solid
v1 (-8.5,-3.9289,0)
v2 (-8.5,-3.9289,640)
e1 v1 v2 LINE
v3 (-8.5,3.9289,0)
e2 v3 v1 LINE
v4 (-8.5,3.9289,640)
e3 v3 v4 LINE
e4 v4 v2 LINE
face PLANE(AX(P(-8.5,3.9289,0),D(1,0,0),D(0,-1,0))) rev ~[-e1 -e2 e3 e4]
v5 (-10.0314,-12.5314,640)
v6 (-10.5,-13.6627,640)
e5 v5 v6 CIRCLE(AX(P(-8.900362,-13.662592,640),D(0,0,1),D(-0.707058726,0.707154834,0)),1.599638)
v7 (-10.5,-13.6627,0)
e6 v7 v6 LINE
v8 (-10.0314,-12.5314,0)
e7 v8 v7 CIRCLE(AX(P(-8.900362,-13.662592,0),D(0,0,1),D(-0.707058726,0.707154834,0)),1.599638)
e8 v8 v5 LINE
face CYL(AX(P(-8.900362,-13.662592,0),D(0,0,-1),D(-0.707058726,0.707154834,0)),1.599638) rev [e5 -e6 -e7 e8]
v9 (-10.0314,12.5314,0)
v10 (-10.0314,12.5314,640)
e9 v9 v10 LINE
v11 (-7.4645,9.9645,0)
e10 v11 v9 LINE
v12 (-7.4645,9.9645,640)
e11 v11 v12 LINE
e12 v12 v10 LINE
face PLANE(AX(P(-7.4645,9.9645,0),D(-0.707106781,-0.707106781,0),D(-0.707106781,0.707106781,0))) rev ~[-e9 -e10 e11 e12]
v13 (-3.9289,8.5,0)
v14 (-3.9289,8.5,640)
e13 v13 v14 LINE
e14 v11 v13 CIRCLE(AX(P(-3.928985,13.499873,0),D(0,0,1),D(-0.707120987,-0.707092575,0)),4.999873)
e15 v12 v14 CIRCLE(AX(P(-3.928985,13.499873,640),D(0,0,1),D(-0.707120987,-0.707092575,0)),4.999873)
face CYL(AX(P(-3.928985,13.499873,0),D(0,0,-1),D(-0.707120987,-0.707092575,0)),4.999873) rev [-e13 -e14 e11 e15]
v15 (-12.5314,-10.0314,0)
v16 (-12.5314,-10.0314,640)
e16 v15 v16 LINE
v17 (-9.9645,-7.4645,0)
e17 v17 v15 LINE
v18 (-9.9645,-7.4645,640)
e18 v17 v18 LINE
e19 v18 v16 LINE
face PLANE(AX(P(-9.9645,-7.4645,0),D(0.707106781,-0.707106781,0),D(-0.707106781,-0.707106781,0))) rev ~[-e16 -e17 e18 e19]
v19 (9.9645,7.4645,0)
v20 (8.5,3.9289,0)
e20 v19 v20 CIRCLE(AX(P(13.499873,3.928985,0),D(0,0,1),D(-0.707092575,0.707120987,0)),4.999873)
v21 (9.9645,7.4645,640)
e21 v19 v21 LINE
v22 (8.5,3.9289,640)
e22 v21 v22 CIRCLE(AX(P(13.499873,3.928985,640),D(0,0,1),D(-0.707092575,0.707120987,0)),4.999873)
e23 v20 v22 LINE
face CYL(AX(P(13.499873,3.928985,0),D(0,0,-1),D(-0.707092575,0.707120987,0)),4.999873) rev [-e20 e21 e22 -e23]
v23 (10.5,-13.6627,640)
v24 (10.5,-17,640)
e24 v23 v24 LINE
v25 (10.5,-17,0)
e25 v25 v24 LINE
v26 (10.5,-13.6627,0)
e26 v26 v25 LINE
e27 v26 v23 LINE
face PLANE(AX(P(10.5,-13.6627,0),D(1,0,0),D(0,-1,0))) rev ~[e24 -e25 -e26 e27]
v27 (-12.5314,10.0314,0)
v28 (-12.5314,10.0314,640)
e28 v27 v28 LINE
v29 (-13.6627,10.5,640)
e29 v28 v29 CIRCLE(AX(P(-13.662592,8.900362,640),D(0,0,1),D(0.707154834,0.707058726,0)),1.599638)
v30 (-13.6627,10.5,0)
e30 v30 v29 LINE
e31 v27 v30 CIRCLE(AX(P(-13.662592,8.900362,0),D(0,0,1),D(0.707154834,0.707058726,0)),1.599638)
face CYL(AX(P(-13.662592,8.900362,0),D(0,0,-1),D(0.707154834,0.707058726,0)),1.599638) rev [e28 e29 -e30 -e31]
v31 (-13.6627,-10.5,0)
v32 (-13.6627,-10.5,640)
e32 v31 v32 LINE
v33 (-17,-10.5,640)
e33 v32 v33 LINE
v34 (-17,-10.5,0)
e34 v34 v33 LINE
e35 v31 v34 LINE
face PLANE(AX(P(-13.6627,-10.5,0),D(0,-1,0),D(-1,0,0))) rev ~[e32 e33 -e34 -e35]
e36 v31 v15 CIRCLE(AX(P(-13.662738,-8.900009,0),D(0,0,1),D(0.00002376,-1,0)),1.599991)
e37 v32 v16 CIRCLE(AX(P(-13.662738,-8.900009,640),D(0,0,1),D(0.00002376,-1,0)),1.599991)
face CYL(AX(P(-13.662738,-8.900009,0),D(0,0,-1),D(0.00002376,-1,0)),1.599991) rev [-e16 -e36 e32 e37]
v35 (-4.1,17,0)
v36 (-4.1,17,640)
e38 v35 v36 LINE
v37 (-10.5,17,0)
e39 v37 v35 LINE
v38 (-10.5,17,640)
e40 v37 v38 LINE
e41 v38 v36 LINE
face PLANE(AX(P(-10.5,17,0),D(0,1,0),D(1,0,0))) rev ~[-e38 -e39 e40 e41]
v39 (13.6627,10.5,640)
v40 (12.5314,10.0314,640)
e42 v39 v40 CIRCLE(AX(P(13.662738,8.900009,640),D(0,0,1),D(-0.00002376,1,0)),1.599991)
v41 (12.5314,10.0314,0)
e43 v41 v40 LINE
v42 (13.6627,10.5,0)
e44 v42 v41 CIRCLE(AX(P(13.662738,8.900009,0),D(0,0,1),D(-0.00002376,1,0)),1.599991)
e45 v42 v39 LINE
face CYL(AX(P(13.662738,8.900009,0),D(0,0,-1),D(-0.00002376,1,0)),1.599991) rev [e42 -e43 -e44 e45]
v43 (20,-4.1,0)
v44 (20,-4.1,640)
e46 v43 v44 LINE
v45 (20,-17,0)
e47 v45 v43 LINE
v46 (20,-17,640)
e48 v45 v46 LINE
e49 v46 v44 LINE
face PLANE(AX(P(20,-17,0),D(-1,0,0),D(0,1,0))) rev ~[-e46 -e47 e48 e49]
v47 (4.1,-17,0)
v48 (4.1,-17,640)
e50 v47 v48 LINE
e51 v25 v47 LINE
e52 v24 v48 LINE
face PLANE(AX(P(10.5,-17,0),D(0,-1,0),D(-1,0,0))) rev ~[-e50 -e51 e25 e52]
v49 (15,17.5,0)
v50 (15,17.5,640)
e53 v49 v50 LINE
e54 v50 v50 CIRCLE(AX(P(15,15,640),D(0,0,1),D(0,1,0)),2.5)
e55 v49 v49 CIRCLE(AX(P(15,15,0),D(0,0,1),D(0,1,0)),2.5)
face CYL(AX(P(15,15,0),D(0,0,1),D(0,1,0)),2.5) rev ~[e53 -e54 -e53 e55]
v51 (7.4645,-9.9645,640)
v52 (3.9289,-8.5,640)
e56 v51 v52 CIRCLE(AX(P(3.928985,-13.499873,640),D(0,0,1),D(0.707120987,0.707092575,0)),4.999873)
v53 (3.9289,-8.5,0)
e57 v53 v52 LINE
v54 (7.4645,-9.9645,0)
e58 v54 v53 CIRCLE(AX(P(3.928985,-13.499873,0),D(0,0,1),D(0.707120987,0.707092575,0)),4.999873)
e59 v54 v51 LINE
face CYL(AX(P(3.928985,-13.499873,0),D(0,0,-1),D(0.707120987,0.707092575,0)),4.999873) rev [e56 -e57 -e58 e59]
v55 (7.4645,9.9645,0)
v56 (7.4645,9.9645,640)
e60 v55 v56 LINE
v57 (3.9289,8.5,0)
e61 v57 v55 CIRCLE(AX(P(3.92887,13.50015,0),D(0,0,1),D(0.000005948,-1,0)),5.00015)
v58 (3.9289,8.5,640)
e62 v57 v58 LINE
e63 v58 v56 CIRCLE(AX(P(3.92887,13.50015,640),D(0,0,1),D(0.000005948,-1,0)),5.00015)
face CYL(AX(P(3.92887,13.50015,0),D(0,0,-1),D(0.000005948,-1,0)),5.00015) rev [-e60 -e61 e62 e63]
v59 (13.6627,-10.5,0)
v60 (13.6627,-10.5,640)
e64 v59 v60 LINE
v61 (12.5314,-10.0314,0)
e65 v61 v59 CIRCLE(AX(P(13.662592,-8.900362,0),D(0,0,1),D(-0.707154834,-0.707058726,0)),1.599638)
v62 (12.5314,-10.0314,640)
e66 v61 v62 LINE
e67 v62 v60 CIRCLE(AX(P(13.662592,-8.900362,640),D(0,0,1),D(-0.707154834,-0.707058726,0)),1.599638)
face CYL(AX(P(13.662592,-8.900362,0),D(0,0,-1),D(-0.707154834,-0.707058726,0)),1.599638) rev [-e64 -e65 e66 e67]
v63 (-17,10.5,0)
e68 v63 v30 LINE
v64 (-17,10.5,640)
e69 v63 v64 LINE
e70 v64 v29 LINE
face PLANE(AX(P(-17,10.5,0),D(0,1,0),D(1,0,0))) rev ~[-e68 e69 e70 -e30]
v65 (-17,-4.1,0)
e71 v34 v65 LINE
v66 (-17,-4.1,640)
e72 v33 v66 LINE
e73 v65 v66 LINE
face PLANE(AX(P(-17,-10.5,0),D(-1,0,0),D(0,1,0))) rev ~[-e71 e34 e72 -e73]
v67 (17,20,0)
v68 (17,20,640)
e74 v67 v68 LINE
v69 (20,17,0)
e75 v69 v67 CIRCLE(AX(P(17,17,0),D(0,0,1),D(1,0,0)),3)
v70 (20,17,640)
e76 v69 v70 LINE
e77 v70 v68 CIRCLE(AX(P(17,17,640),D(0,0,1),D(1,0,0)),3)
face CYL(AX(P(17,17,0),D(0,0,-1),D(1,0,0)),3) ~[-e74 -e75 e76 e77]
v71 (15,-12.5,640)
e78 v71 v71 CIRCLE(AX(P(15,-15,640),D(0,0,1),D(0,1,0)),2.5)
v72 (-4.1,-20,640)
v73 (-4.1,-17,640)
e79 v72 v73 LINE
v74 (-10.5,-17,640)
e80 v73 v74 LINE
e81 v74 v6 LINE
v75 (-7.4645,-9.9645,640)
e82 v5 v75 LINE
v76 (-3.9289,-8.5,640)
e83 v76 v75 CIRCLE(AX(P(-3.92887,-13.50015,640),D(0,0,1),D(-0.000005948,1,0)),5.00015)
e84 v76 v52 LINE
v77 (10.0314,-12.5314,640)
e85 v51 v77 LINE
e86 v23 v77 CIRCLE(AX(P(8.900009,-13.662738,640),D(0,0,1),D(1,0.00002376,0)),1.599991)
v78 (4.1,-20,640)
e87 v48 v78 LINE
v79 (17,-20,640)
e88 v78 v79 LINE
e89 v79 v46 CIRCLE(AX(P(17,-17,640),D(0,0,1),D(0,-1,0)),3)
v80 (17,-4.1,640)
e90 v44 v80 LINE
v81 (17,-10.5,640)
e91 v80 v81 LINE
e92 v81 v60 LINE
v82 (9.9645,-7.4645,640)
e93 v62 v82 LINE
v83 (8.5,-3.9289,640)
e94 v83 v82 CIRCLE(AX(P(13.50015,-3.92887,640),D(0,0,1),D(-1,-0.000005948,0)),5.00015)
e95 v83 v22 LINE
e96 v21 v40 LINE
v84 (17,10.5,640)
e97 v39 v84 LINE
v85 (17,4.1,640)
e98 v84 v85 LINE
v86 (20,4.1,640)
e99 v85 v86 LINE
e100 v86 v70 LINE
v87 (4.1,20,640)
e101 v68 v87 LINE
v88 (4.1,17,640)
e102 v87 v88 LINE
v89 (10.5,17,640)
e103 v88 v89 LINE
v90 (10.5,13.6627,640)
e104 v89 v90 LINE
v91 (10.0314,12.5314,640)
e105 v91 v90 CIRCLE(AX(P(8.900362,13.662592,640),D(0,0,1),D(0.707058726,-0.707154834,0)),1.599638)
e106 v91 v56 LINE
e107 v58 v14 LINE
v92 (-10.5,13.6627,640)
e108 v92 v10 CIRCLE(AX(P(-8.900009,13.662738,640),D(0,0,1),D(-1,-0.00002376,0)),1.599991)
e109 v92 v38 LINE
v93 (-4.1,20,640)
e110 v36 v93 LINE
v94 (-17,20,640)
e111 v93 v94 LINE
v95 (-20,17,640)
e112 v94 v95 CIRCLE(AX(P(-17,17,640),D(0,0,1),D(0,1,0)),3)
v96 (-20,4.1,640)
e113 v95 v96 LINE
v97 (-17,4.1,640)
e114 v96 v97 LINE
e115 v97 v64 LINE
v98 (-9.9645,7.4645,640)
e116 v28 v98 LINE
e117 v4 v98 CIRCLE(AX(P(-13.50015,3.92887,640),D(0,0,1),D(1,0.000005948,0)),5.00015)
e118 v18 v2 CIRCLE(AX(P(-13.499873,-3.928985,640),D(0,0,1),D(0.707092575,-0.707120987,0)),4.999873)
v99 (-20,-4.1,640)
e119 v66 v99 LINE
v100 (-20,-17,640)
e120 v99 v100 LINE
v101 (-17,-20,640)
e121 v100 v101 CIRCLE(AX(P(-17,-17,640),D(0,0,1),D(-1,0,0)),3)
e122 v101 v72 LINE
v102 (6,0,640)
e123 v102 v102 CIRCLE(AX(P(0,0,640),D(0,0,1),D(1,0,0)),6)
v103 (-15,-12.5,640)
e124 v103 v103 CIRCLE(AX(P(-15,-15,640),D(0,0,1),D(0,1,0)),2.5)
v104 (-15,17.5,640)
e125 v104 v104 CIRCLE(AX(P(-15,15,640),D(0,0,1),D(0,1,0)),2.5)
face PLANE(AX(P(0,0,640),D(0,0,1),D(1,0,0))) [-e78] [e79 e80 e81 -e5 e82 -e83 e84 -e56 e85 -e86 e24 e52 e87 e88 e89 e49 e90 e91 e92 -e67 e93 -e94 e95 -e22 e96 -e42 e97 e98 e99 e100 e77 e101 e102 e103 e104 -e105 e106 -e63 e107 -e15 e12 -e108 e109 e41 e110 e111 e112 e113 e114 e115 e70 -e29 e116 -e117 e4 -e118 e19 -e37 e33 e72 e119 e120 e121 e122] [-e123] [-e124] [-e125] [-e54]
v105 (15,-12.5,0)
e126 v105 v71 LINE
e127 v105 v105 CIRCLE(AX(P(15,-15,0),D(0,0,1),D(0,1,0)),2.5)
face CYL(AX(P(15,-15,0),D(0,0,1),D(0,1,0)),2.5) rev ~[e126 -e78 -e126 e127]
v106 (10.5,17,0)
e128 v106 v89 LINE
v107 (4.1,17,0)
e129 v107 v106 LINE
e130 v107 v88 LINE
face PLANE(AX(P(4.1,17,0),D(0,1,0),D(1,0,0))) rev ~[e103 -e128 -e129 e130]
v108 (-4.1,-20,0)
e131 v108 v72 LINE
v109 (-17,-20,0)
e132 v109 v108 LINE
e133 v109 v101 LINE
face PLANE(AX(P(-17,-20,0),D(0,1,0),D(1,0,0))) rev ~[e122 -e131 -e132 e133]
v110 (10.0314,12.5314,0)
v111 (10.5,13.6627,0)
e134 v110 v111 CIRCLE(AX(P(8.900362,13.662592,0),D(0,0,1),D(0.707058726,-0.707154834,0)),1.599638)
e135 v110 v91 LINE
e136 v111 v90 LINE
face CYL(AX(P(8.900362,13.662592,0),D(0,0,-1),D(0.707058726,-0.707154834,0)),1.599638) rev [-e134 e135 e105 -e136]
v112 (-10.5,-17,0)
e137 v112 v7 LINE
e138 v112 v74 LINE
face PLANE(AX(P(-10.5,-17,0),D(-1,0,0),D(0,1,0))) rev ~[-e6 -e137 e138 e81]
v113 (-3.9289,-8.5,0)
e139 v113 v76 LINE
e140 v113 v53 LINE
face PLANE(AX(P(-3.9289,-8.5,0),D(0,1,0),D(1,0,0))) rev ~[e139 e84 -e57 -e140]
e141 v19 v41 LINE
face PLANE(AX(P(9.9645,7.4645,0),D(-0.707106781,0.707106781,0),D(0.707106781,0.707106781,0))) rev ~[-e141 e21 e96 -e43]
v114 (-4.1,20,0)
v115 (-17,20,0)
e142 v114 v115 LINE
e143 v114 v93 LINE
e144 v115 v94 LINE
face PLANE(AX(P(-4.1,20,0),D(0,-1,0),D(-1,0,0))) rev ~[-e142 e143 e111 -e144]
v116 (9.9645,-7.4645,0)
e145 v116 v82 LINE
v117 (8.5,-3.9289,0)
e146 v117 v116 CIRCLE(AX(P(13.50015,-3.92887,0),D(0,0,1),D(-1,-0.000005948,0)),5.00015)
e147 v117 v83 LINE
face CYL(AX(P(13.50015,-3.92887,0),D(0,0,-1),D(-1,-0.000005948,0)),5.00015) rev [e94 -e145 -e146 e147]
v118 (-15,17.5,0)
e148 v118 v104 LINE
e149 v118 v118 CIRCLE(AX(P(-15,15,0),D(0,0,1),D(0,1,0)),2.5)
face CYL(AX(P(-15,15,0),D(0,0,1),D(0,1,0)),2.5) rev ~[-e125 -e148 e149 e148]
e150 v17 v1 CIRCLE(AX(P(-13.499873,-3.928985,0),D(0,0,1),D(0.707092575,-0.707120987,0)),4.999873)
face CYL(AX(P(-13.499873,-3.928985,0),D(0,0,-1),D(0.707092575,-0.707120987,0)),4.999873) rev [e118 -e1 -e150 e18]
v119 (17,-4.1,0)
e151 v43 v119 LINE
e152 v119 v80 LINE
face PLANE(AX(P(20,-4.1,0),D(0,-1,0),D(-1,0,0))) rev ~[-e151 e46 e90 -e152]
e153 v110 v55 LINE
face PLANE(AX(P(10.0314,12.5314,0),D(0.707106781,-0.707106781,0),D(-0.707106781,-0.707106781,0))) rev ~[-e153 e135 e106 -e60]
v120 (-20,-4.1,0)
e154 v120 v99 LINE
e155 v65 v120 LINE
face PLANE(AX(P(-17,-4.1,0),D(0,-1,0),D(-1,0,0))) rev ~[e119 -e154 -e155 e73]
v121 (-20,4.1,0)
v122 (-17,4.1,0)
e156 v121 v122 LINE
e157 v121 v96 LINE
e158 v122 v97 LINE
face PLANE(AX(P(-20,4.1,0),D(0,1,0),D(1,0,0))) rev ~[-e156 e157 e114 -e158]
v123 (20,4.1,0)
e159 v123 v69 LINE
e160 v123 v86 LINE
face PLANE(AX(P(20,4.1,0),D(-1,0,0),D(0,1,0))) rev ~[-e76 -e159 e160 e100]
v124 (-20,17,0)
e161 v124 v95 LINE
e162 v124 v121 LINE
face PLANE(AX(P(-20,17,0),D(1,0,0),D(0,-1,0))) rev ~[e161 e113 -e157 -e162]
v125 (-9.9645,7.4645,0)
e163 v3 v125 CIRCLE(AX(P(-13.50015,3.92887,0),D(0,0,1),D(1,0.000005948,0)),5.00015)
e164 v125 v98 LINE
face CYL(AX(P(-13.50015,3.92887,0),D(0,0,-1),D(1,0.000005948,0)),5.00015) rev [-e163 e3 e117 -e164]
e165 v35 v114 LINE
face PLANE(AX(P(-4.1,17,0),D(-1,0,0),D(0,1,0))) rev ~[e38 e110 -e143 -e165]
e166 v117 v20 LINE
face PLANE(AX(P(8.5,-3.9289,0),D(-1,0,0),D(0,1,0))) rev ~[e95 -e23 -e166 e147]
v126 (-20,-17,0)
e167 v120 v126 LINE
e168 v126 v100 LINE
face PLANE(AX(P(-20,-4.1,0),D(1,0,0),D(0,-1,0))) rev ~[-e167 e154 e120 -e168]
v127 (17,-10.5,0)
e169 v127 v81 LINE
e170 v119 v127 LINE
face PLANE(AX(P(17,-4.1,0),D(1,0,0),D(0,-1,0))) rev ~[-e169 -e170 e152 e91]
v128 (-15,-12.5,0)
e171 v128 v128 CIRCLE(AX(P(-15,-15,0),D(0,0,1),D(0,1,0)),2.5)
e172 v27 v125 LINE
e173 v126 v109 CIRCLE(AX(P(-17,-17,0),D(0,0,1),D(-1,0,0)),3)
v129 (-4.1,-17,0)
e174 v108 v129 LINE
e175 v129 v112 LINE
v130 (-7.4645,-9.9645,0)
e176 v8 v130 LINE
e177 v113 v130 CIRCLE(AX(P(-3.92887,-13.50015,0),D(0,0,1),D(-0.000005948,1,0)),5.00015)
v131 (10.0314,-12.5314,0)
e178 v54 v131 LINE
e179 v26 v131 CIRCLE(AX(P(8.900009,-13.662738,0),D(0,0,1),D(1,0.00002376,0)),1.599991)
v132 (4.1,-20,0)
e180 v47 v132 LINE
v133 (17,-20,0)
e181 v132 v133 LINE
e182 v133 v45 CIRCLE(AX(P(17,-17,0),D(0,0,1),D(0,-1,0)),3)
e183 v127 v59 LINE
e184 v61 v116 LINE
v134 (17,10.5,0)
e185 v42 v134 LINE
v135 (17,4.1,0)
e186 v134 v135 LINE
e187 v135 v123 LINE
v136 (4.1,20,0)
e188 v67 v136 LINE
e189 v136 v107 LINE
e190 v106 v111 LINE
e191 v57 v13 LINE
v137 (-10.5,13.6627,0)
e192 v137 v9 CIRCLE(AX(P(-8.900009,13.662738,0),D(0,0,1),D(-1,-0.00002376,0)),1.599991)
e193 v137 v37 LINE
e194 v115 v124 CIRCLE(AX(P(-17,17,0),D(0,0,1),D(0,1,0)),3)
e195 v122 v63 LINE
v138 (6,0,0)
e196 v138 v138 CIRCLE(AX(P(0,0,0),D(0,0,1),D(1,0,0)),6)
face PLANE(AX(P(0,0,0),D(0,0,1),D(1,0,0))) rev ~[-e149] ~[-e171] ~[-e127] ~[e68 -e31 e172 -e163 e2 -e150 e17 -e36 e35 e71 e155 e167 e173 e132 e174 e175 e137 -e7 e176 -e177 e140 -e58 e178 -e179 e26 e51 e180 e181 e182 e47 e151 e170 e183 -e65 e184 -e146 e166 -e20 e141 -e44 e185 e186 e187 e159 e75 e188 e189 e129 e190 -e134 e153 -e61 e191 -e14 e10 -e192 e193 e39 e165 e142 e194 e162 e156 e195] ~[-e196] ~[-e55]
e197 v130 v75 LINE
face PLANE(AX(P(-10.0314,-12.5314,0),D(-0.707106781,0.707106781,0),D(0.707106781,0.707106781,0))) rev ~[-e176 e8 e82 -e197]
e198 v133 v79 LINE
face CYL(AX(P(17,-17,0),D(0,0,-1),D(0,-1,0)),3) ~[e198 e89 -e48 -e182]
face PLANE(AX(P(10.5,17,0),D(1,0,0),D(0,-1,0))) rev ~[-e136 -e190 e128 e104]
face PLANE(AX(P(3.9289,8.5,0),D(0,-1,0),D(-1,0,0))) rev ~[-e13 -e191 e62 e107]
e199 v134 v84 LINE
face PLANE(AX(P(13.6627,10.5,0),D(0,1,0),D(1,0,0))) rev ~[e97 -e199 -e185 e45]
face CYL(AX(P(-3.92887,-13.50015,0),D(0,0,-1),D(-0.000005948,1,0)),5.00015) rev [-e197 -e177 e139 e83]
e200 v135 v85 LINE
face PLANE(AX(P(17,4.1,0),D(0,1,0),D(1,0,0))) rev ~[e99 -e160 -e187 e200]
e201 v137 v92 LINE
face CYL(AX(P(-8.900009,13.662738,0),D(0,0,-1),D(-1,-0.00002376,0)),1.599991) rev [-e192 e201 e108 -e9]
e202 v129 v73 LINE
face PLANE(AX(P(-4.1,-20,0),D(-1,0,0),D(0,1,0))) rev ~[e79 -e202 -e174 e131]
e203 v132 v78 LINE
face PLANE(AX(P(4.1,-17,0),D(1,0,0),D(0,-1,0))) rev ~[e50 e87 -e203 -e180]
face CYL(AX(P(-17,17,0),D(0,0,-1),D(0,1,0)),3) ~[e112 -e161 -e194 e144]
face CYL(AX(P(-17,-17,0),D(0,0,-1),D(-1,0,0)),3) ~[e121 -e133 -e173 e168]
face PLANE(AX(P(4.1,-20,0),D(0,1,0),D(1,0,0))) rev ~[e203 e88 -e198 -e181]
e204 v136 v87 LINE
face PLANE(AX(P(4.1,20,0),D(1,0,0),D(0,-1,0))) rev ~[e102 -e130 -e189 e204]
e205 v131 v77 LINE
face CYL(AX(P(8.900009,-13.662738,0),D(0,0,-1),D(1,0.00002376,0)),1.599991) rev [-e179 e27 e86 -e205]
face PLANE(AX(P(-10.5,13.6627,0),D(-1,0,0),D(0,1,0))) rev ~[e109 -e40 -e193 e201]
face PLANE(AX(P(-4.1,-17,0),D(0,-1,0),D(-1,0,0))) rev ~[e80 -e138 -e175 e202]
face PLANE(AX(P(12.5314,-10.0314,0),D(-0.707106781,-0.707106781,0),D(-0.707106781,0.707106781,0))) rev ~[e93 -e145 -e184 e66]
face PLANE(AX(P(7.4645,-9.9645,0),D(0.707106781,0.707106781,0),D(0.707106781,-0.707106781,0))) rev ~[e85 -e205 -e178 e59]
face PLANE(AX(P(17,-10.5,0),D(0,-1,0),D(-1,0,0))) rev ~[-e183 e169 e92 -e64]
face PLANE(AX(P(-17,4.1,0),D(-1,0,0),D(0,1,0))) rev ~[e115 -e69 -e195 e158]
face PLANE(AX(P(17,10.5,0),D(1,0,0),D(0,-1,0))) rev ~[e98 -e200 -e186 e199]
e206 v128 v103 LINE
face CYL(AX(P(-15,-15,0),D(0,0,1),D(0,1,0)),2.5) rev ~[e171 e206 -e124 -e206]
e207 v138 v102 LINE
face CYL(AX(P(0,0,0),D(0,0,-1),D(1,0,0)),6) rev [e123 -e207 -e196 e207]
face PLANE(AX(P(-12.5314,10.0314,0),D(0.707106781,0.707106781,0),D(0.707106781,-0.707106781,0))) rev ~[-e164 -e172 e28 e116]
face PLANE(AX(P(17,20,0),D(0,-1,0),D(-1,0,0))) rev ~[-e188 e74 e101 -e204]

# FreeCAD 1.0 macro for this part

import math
import FreeCAD as App
import Part
import Sketcher
from FreeCAD import Vector
Q = App.Units.Quantity

doc = App.newDocument("Part")
body = doc.addObject("PartDesign::Body", "Body")

sketch1 = body.newObject("Sketcher::SketchObject", "Sketch")
sketch1.AttachmentSupport = (doc.getObject("XY_Plane"), [""])
sketch1.MapMode = "FlatFace"
sketch1.addGeometry(Part.LineSegment(Vector(-20, -4.1, 0), Vector(-20, -17, 0)), False)
sketch1.addGeometry(Part.ArcOfCircle(Part.Circle(Vector(-17, -17, 0), Vector(0, 0, 1), 3), math.radians(180), math.radians(270)), False)
sketch1.addGeometry(Part.LineSegment(Vector(-17, -20, 0), Vector(-4.1, -20, 0)), False)
sketch1.addGeometry(Part.LineSegment(Vector(-4.1, -20, 0), Vector(-4.1, -17, 0)), False)
sketch1.addGeometry(Part.LineSegment(Vector(-4.1, -17, 0), Vector(-10.5, -17, 0)), False)
sketch1.addGeometry(Part.LineSegment(Vector(-10.5, -17, 0), Vector(-10.5, -13.6627, 0)), False)
sketch1.addGeometry(Part.ArcOfCircle(Part.Circle(Vector(-8.9002, -13.6627, 0), Vector(0, 0, 1), 1.599829), math.radians(134.997468), math.radians(180)), False)
sketch1.addGeometry(Part.LineSegment(Vector(-10.0314, -12.5314, 0), Vector(-7.4645, -9.9645, 0)), False)
sketch1.addGeometry(Part.ArcOfCircle(Part.Circle(Vector(-3.9289, -13.5, 0), Vector(0, 0, 1), 5), math.radians(90), math.radians(135.00081)), False)
sketch1.addGeometry(Part.LineSegment(Vector(-3.9289, -8.5, 0), Vector(3.9289, -8.5, 0)), False)
sketch1.addGeometry(Part.ArcOfCircle(Part.Circle(Vector(3.9289, -13.5, 0), Vector(0, 0, 1), 5.000023), math.radians(44.99919), math.radians(90)), False)
sketch1.addGeometry(Part.LineSegment(Vector(7.4645, -9.9645, 0), Vector(10.0314, -12.5314, 0)), False)
sketch1.addGeometry(Part.ArcOfCircle(Part.Circle(Vector(8.9002, -13.6627, 0), Vector(0, 0, 1), 1.5998), math.radians(0), math.radians(45.002532)), False)
sketch1.addGeometry(Part.LineSegment(Vector(10.5, -13.6627, 0), Vector(10.5, -17, 0)), False)
sketch1.addGeometry(Part.LineSegment(Vector(10.5, -17, 0), Vector(4.1, -17, 0)), False)
sketch1.addGeometry(Part.LineSegment(Vector(4.1, -17, 0), Vector(4.1, -20, 0)), False)
sketch1.addGeometry(Part.LineSegment(Vector(4.1, -20, 0), Vector(17, -20, 0)), False)
sketch1.addGeometry(Part.ArcOfCircle(Part.Circle(Vector(17, -17, 0), Vector(0, 0, 1), 3), math.radians(-90), math.radians(0)), False)
sketch1.addGeometry(Part.LineSegment(Vector(20, -17, 0), Vector(20, -4.1, 0)), False)
sketch1.addGeometry(Part.LineSegment(Vector(20, -4.1, 0), Vector(17, -4.1, 0)), False)
sketch1.addGeometry(Part.LineSegment(Vector(17, -4.1, 0), Vector(17, -10.5, 0)), False)
sketch1.addGeometry(Part.LineSegment(Vector(17, -10.5, 0), Vector(13.6627, -10.5, 0)), False)
sketch1.addGeometry(Part.ArcOfCircle(Part.Circle(Vector(13.6627, -8.9002, 0), Vector(0, 0, 1), 1.599829), math.radians(-135.002532), math.radians(-90)), False)
sketch1.addGeometry(Part.LineSegment(Vector(12.5314, -10.0314, 0), Vector(9.9645, -7.4645, 0)), False)
sketch1.addGeometry(Part.ArcOfCircle(Part.Circle(Vector(13.5, -3.9289, 0), Vector(0, 0, 1), 5), math.radians(180), math.radians(225.00081)), False)
sketch1.addGeometry(Part.LineSegment(Vector(8.5, -3.9289, 0), Vector(8.5, 3.9289, 0)), False)
sketch1.addGeometry(Part.ArcOfCircle(Part.Circle(Vector(13.5, 3.9289, 0), Vector(0, 0, 1), 5.000023), math.radians(134.99919), math.radians(180)), False)
sketch1.addGeometry(Part.LineSegment(Vector(9.9645, 7.4645, 0), Vector(12.5314, 10.0314, 0)), False)
sketch1.addGeometry(Part.ArcOfCircle(Part.Circle(Vector(13.6627, 8.9002, 0), Vector(0, 0, 1), 1.5998), math.radians(90), math.radians(135.002532)), False)
sketch1.addGeometry(Part.LineSegment(Vector(13.6627, 10.5, 0), Vector(17, 10.5, 0)), False)
sketch1.addGeometry(Part.LineSegment(Vector(17, 10.5, 0), Vector(17, 4.1, 0)), False)
sketch1.addGeometry(Part.LineSegment(Vector(17, 4.1, 0), Vector(20, 4.1, 0)), False)
sketch1.addGeometry(Part.LineSegment(Vector(20, 4.1, 0), Vector(20, 17, 0)), False)
sketch1.addGeometry(Part.ArcOfCircle(Part.Circle(Vector(17, 17, 0), Vector(0, 0, 1), 3), math.radians(0), math.radians(90)), False)
sketch1.addGeometry(Part.LineSegment(Vector(17, 20, 0), Vector(4.1, 20, 0)), False)
sketch1.addGeometry(Part.LineSegment(Vector(4.1, 20, 0), Vector(4.1, 17, 0)), False)
sketch1.addGeometry(Part.LineSegment(Vector(4.1, 17, 0), Vector(10.5, 17, 0)), False)
sketch1.addGeometry(Part.LineSegment(Vector(10.5, 17, 0), Vector(10.5, 13.6627, 0)), False)
sketch1.addGeometry(Part.ArcOfCircle(Part.Circle(Vector(8.9002, 13.6627, 0), Vector(0, 0, 1), 1.599829), math.radians(-45.002532), math.radians(0)), False)
sketch1.addGeometry(Part.LineSegment(Vector(10.0314, 12.5314, 0), Vector(7.4645, 9.9645, 0)), False)
sketch1.addGeometry(Part.ArcOfCircle(Part.Circle(Vector(3.9289, 13.5, 0), Vector(0, 0, 1), 5), math.radians(-90), math.radians(-44.99919)), False)
sketch1.addGeometry(Part.LineSegment(Vector(3.9289, 8.5, 0), Vector(-3.9289, 8.5, 0)), False)
sketch1.addGeometry(Part.ArcOfCircle(Part.Circle(Vector(-3.9289, 13.5, 0), Vector(0, 0, 1), 5.000023), math.radians(-135.00081), math.radians(-90)), False)
sketch1.addGeometry(Part.LineSegment(Vector(-7.4645, 9.9645, 0), Vector(-10.0314, 12.5314, 0)), False)
sketch1.addGeometry(Part.ArcOfCircle(Part.Circle(Vector(-8.9002, 13.6627, 0), Vector(0, 0, 1), 1.5998), math.radians(180), math.radians(225.002532)), False)
sketch1.addGeometry(Part.LineSegment(Vector(-10.5, 13.6627, 0), Vector(-10.5, 17, 0)), False)
sketch1.addGeometry(Part.LineSegment(Vector(-10.5, 17, 0), Vector(-4.1, 17, 0)), False)
sketch1.addGeometry(Part.LineSegment(Vector(-4.1, 17, 0), Vector(-4.1, 20, 0)), False)
sketch1.addGeometry(Part.LineSegment(Vector(-4.1, 20, 0), Vector(-17, 20, 0)), False)
sketch1.addGeometry(Part.ArcOfCircle(Part.Circle(Vector(-17, 17, 0), Vector(0, 0, 1), 3), math.radians(90), math.radians(180)), False)
sketch1.addGeometry(Part.LineSegment(Vector(-20, 17, 0), Vector(-20, 4.1, 0)), False)
sketch1.addGeometry(Part.LineSegment(Vector(-20, 4.1, 0), Vector(-17, 4.1, 0)), False)
sketch1.addGeometry(Part.LineSegment(Vector(-17, 4.1, 0), Vector(-17, 10.5, 0)), False)
sketch1.addGeometry(Part.LineSegment(Vector(-17, 10.5, 0), Vector(-13.6627, 10.5, 0)), False)
sketch1.addGeometry(Part.ArcOfCircle(Part.Circle(Vector(-13.6627, 8.9002, 0), Vector(0, 0, 1), 1.599829), math.radians(44.997468), math.radians(90)), False)
sketch1.addGeometry(Part.LineSegment(Vector(-12.5314, 10.0314, 0), Vector(-9.9645, 7.4645, 0)), False)
sketch1.addGeometry(Part.ArcOfCircle(Part.Circle(Vector(-13.5, 3.9289, 0), Vector(0, 0, 1), 5), math.radians(0), math.radians(45.00081)), False)
sketch1.addGeometry(Part.LineSegment(Vector(-8.5, 3.9289, 0), Vector(-8.5, -3.9289, 0)), False)
sketch1.addGeometry(Part.ArcOfCircle(Part.Circle(Vector(-13.5, -3.9289, 0), Vector(0, 0, 1), 5.000023), math.radians(-45.00081), math.radians(0)), False)
sketch1.addGeometry(Part.LineSegment(Vector(-9.9645, -7.4645, 0), Vector(-12.5314, -10.0314, 0)), False)
sketch1.addGeometry(Part.ArcOfCircle(Part.Circle(Vector(-13.6627, -8.9002, 0), Vector(0, 0, 1), 1.5998), math.radians(-90), math.radians(-44.997468)), False)
sketch1.addGeometry(Part.LineSegment(Vector(-13.6627, -10.5, 0), Vector(-17, -10.5, 0)), False)
sketch1.addGeometry(Part.LineSegment(Vector(-17, -10.5, 0), Vector(-17, -4.1, 0)), False)
sketch1.addGeometry(Part.LineSegment(Vector(-17, -4.1, 0), Vector(-20, -4.1, 0)), False)
sketch1.addGeometry(Part.Circle(Vector(0, 0, 0), Vector(0, 0, 1), 6), False)
sketch1.addConstraint(Sketcher.Constraint("Tangent", 0, 2, 1, 1))
sketch1.addConstraint(Sketcher.Constraint("Tangent", 1, 2, 2, 1))
sketch1.addConstraint(Sketcher.Constraint("Coincident", 2, 2, 3, 1))
sketch1.addConstraint(Sketcher.Constraint("Coincident", 3, 2, 4, 1))
sketch1.addConstraint(Sketcher.Constraint("Coincident", 4, 2, 5, 1))
sketch1.addConstraint(Sketcher.Constraint("Tangent", 5, 2, 6, 2))
sketch1.addConstraint(Sketcher.Constraint("Tangent", 6, 1, 7, 1))
sketch1.addConstraint(Sketcher.Constraint("Tangent", 7, 2, 8, 2))
sketch1.addConstraint(Sketcher.Constraint("Tangent", 8, 1, 9, 1))
sketch1.addConstraint(Sketcher.Constraint("Tangent", 9, 2, 10, 2))
sketch1.addConstraint(Sketcher.Constraint("Tangent", 10, 1, 11, 1))
sketch1.addConstraint(Sketcher.Constraint("Tangent", 11, 2, 12, 2))
sketch1.addConstraint(Sketcher.Constraint("Tangent", 12, 1, 13, 1))
sketch1.addConstraint(Sketcher.Constraint("Coincident", 13, 2, 14, 1))
sketch1.addConstraint(Sketcher.Constraint("Coincident", 14, 2, 15, 1))
sketch1.addConstraint(Sketcher.Constraint("Coincident", 15, 2, 16, 1))
sketch1.addConstraint(Sketcher.Constraint("Tangent", 16, 2, 17, 1))
sketch1.addConstraint(Sketcher.Constraint("Tangent", 17, 2, 18, 1))
sketch1.addConstraint(Sketcher.Constraint("Coincident", 18, 2, 19, 1))
sketch1.addConstraint(Sketcher.Constraint("Coincident", 19, 2, 20, 1))
sketch1.addConstraint(Sketcher.Constraint("Coincident", 20, 2, 21, 1))
sketch1.addConstraint(Sketcher.Constraint("Tangent", 21, 2, 22, 2))
sketch1.addConstraint(Sketcher.Constraint("Tangent", 22, 1, 23, 1))
sketch1.addConstraint(Sketcher.Constraint("Tangent", 23, 2, 24, 2))
sketch1.addConstraint(Sketcher.Constraint("Tangent", 24, 1, 25, 1))
sketch1.addConstraint(Sketcher.Constraint("Tangent", 25, 2, 26, 2))
sketch1.addConstraint(Sketcher.Constraint("Tangent", 26, 1, 27, 1))
sketch1.addConstraint(Sketcher.Constraint("Tangent", 27, 2, 28, 2))
sketch1.addConstraint(Sketcher.Constraint("Tangent", 28, 1, 29, 1))
sketch1.addConstraint(Sketcher.Constraint("Coincident", 29, 2, 30, 1))
sketch1.addConstraint(Sketcher.Constraint("Coincident", 30, 2, 31, 1))
sketch1.addConstraint(Sketcher.Constraint("Coincident", 31, 2, 32, 1))
sketch1.addConstraint(Sketcher.Constraint("Tangent", 32, 2, 33, 1))
sketch1.addConstraint(Sketcher.Constraint("Tangent", 33, 2, 34, 1))
sketch1.addConstraint(Sketcher.Constraint("Coincident", 34, 2, 35, 1))
sketch1.addConstraint(Sketcher.Constraint("Coincident", 35, 2, 36, 1))
sketch1.addConstraint(Sketcher.Constraint("Coincident", 36, 2, 37, 1))
sketch1.addConstraint(Sketcher.Constraint("Tangent", 37, 2, 38, 2))
sketch1.addConstraint(Sketcher.Constraint("Tangent", 38, 1, 39, 1))
sketch1.addConstraint(Sketcher.Constraint("Tangent", 39, 2, 40, 2))
sketch1.addConstraint(Sketcher.Constraint("Tangent", 40, 1, 41, 1))
sketch1.addConstraint(Sketcher.Constraint("Tangent", 41, 2, 42, 2))
sketch1.addConstraint(Sketcher.Constraint("Tangent", 42, 1, 43, 1))
sketch1.addConstraint(Sketcher.Constraint("Tangent", 43, 2, 44, 2))
sketch1.addConstraint(Sketcher.Constraint("Tangent", 44, 1, 45, 1))
sketch1.addConstraint(Sketcher.Constraint("Coincident", 45, 2, 46, 1))
sketch1.addConstraint(Sketcher.Constraint("Coincident", 46, 2, 47, 1))
sketch1.addConstraint(Sketcher.Constraint("Coincident", 47, 2, 48, 1))
sketch1.addConstraint(Sketcher.Constraint("Tangent", 48, 2, 49, 1))
sketch1.addConstraint(Sketcher.Constraint("Tangent", 49, 2, 50, 1))
sketch1.addConstraint(Sketcher.Constraint("Coincident", 50, 2, 51, 1))
sketch1.addConstraint(Sketcher.Constraint("Coincident", 51, 2, 52, 1))
sketch1.addConstraint(Sketcher.Constraint("Coincident", 52, 2, 53, 1))
sketch1.addConstraint(Sketcher.Constraint("Tangent", 53, 2, 54, 2))
sketch1.addConstraint(Sketcher.Constraint("Tangent", 54, 1, 55, 1))
sketch1.addConstraint(Sketcher.Constraint("Tangent", 55, 2, 56, 2))
sketch1.addConstraint(Sketcher.Constraint("Tangent", 56, 1, 57, 1))
sketch1.addConstraint(Sketcher.Constraint("Tangent", 57, 2, 58, 2))
sketch1.addConstraint(Sketcher.Constraint("Tangent", 58, 1, 59, 1))
sketch1.addConstraint(Sketcher.Constraint("Tangent", 59, 2, 60, 2))
sketch1.addConstraint(Sketcher.Constraint("Tangent", 60, 1, 61, 1))
sketch1.addConstraint(Sketcher.Constraint("Coincident", 61, 2, 62, 1))
sketch1.addConstraint(Sketcher.Constraint("Coincident", 62, 2, 63, 1))
sketch1.addConstraint(Sketcher.Constraint("Coincident", 63, 2, 0, 1))
sketch1.addConstraint(Sketcher.Constraint("Vertical", 0))
sketch1.addConstraint(Sketcher.Constraint("Horizontal", 2))
sketch1.addConstraint(Sketcher.Constraint("Vertical", 3))
sketch1.addConstraint(Sketcher.Constraint("Horizontal", 4))
sketch1.addConstraint(Sketcher.Constraint("Vertical", 5))
sketch1.addConstraint(Sketcher.Constraint("Horizontal", 9))
sketch1.addConstraint(Sketcher.Constraint("Vertical", 13))
sketch1.addConstraint(Sketcher.Constraint("Horizontal", 14))
sketch1.addConstraint(Sketcher.Constraint("Vertical", 15))
sketch1.addConstraint(Sketcher.Constraint("Horizontal", 16))
sketch1.addConstraint(Sketcher.Constraint("Vertical", 18))
sketch1.addConstraint(Sketcher.Constraint("Horizontal", 19))
sketch1.addConstraint(Sketcher.Constraint("Vertical", 20))
sketch1.addConstraint(Sketcher.Constraint("Horizontal", 21))
sketch1.addConstraint(Sketcher.Constraint("Vertical", 25))
sketch1.addConstraint(Sketcher.Constraint("Horizontal", 29))
sketch1.addConstraint(Sketcher.Constraint("Vertical", 30))
sketch1.addConstraint(Sketcher.Constraint("Horizontal", 31))
sketch1.addConstraint(Sketcher.Constraint("Vertical", 32))
sketch1.addConstraint(Sketcher.Constraint("Horizontal", 34))
sketch1.addConstraint(Sketcher.Constraint("Vertical", 35))
sketch1.addConstraint(Sketcher.Constraint("Horizontal", 36))
sketch1.addConstraint(Sketcher.Constraint("Vertical", 37))
sketch1.addConstraint(Sketcher.Constraint("Horizontal", 41))
sketch1.addConstraint(Sketcher.Constraint("Vertical", 45))
sketch1.addConstraint(Sketcher.Constraint("Horizontal", 46))
sketch1.addConstraint(Sketcher.Constraint("Vertical", 47))
sketch1.addConstraint(Sketcher.Constraint("Horizontal", 48))
sketch1.addConstraint(Sketcher.Constraint("Vertical", 50))
sketch1.addConstraint(Sketcher.Constraint("Horizontal", 51))
sketch1.addConstraint(Sketcher.Constraint("Vertical", 52))
sketch1.addConstraint(Sketcher.Constraint("Horizontal", 53))
sketch1.addConstraint(Sketcher.Constraint("Vertical", 57))
sketch1.addConstraint(Sketcher.Constraint("Horizontal", 61))
sketch1.addConstraint(Sketcher.Constraint("Vertical", 62))
sketch1.addConstraint(Sketcher.Constraint("Horizontal", 63))
sketch1.addConstraint(Sketcher.Constraint("Coincident", 64, 3, -1, 1))
sketch1.addConstraint(Sketcher.Constraint("Equal", 8, 10))
sketch1.addConstraint(Sketcher.Constraint("Equal", 6, 12))
sketch1.addConstraint(Sketcher.Constraint("Equal", 1, 17))
sketch1.addConstraint(Sketcher.Constraint("Equal", 12, 22))
sketch1.addConstraint(Sketcher.Constraint("Equal", 10, 24))
sketch1.addConstraint(Sketcher.Constraint("Equal", 24, 26))
sketch1.addConstraint(Sketcher.Constraint("Equal", 22, 28))
sketch1.addConstraint(Sketcher.Constraint("Equal", 17, 33))
sketch1.addConstraint(Sketcher.Constraint("Equal", 28, 38))
sketch1.addConstraint(Sketcher.Constraint("Equal", 26, 40))
sketch1.addConstraint(Sketcher.Constraint("Equal", 40, 42))
sketch1.addConstraint(Sketcher.Constraint("Equal", 38, 44))
sketch1.addConstraint(Sketcher.Constraint("Equal", 33, 49))
sketch1.addConstraint(Sketcher.Constraint("Equal", 44, 54))
sketch1.addConstraint(Sketcher.Constraint("Equal", 42, 56))
sketch1.addConstraint(Sketcher.Constraint("Equal", 56, 58))
sketch1.addConstraint(Sketcher.Constraint("Equal", 54, 60))
sketch1.addConstraint(Sketcher.Constraint("Symmetric", 1, 3, 33, 3, -1, 1))
sketch1.addConstraint(Sketcher.Constraint("Symmetric", 6, 3, 38, 3, -1, 1))
sketch1.addConstraint(Sketcher.Constraint("Symmetric", 8, 3, 40, 3, -1, 1))
sketch1.addConstraint(Sketcher.Constraint("Symmetric", 12, 3, 44, 3, -1, 1))
sketch1.addConstraint(Sketcher.Constraint("Symmetric", 17, 3, 49, 3, -1, 1))
sketch1.addConstraint(Sketcher.Constraint("Symmetric", 22, 3, 54, 3, -1, 1))
sketch1.addConstraint(Sketcher.Constraint("Symmetric", 24, 3, 56, 3, -1, 1))
sketch1.addConstraint(Sketcher.Constraint("Symmetric", 28, 3, 60, 3, -1, 1))
sketch1.addConstraint(Sketcher.Constraint("Symmetric", 3, 2, 35, 2, -1, 1))
sketch1.addConstraint(Sketcher.Constraint("Symmetric", 14, 2, 46, 2, -1, 1))
sketch1.addConstraint(Sketcher.Constraint("Symmetric", 19, 2, 51, 2, -1, 1))
sketch1.addConstraint(Sketcher.Constraint("Symmetric", 30, 2, 62, 2, -1, 1))
sketch1.addConstraint(Sketcher.Constraint("Symmetric", 6, 3, 12, 3, -2))
sketch1.addConstraint(Sketcher.Constraint("Symmetric", 1, 3, 17, 3, -2))
sketch1.addConstraint(Sketcher.Constraint("Symmetric", 28, 3, 54, 3, -2))
sketch1.addConstraint(Sketcher.Constraint("Symmetric", 3, 2, 14, 2, -2))
sketch1.addConstraint(Sketcher.Constraint("Symmetric", 30, 2, 51, 2, -2))
sketch1.addConstraint(Sketcher.Constraint("Perpendicular", 7, 11))
sketch1.addConstraint(Sketcher.Constraint("Parallel", 11, 23))
sketch1.addConstraint(Sketcher.Constraint("Perpendicular", 23, 27))
sketch1.addConstraint(Sketcher.Constraint("Perpendicular", 39, 43))
sketch1.addConstraint(Sketcher.Constraint("Perpendicular", 55, 59))
sketch1.addConstraint(Sketcher.Constraint("Horizontal", 26, 3, 56, 3))
sketch1.addConstraint(Sketcher.Constraint("Horizontal", 0, 2, 3, 2))
sketch1.addConstraint(Sketcher.Constraint("Vertical", 16, 2, 19, 2))
sketch1.addConstraint(Sketcher.Constraint("Equal", 48, 0))
sketch1.addConstraint(Sketcher.Constraint("Equal", 61, 5))
sketch1.addConstraint(Sketcher.Constraint("Equal", 46, 20))
sketch1.addConstraint(Sketcher.Constraint("Equal", 41, 25))
sketch1.addConstraint(Sketcher.Constraint("Equal", 11, 23))
sketch1.addConstraint(Sketcher.Constraint("Diameter", 64, Q("12 mm")))
sketch1.addConstraint(Sketcher.Constraint("Radius", 1, Q("3 mm")))
sketch1.addConstraint(Sketcher.Constraint("Radius", 8, Q("5 mm")))
sketch1.addConstraint(Sketcher.Constraint("DistanceX", 2, 1, 2, 2, Q("12.9 mm")))
sketch1.addConstraint(Sketcher.Constraint("DistanceX", 4, 2, 4, 1, Q("6.4 mm")))
sketch1.addConstraint(Sketcher.Constraint("DistanceX", 1, 3, -1, 1, Q("17 mm")))
sketch1.addConstraint(Sketcher.Constraint("DistanceY", 8, 3, -1, 1, Q("13.5 mm")))
sketch1.addConstraint(Sketcher.Constraint("Radius", 6, Q("1.5998 mm")))
sketch1.addConstraint(Sketcher.Constraint("DistanceX", 9, 1, 9, 2, Q("7.8578 mm")))
pad1 = body.newObject("PartDesign::Pad", "Pad")
pad1.Profile = sketch1
pad1.Length = 640

sketch2 = body.newObject("Sketcher::SketchObject", "Sketch001")
sketch2.AttachmentSupport = (doc.getObject("XY_Plane"), [""])
sketch2.MapMode = "FlatFace"
sketch2.addGeometry(Part.Circle(Vector(-15, 15, 0), Vector(0, 0, 1), 2.5), False)
sketch2.addConstraint(Sketcher.Constraint("Diameter", 0, Q("5 mm")))
sketch2.addConstraint(Sketcher.Constraint("DistanceX", 0, 3, -1, 1, Q("15 mm")))
sketch2.addConstraint(Sketcher.Constraint("DistanceY", -1, 1, 0, 3, Q("15 mm")))
doc.recompute()
hole = body.newObject("PartDesign::Hole", "Hole")
hole.Profile = sketch2
hole.ThreadType = "None"
hole.Diameter = 5
hole.DepthType = "Dimension"
hole.Depth = 6000
hole.DrillPoint = "Flat"
hole.Reversed = True

sketch3 = body.newObject("Sketcher::SketchObject", "Sketch002")
sketch3.AttachmentSupport = (doc.getObject("XY_Plane"), [""])
sketch3.MapMode = "FlatFace"
sketch3.addGeometry(Part.Circle(Vector(15, 15, 0), Vector(0, 0, 1), 2.5), False)
sketch3.addConstraint(Sketcher.Constraint("Diameter", 0, Q("5 mm")))
sketch3.addConstraint(Sketcher.Constraint("DistanceX", -1, 1, 0, 3, Q("15 mm")))
sketch3.addConstraint(Sketcher.Constraint("DistanceY", -1, 1, 0, 3, Q("15 mm")))
doc.recompute()
hole2 = body.newObject("PartDesign::Hole", "Hole001")
hole2.Profile = sketch3
hole2.ThreadType = "None"
hole2.Diameter = 5
hole2.DepthType = "Dimension"
hole2.Depth = 6000
hole2.DrillPoint = "Flat"
hole2.Reversed = True

sketch4 = body.newObject("Sketcher::SketchObject", "Sketch003")
sketch4.AttachmentSupport = (doc.getObject("XY_Plane"), [""])
sketch4.MapMode = "FlatFace"
sketch4.addGeometry(Part.Circle(Vector(15, -15, 0), Vector(0, 0, 1), 2.5), False)
sketch4.addConstraint(Sketcher.Constraint("Diameter", 0, Q("5 mm")))
sketch4.addConstraint(Sketcher.Constraint("DistanceX", -1, 1, 0, 3, Q("15 mm")))
sketch4.addConstraint(Sketcher.Constraint("DistanceY", 0, 3, -1, 1, Q("15 mm")))
doc.recompute()
hole3 = body.newObject("PartDesign::Hole", "Hole002")
hole3.Profile = sketch4
hole3.ThreadType = "None"
hole3.Diameter = 5
hole3.DepthType = "Dimension"
hole3.Depth = 6000
hole3.DrillPoint = "Flat"
hole3.Reversed = True

sketch5 = body.newObject("Sketcher::SketchObject", "Sketch004")
sketch5.AttachmentSupport = (doc.getObject("XY_Plane"), [""])
sketch5.MapMode = "FlatFace"
sketch5.addGeometry(Part.Circle(Vector(-15, -15, 0), Vector(0, 0, 1), 2.5), False)
sketch5.addConstraint(Sketcher.Constraint("Diameter", 0, Q("5 mm")))
sketch5.addConstraint(Sketcher.Constraint("DistanceX", 0, 3, -1, 1, Q("15 mm")))
sketch5.addConstraint(Sketcher.Constraint("DistanceY", 0, 3, -1, 1, Q("15 mm")))
doc.recompute()
hole4 = body.newObject("PartDesign::Hole", "Hole003")
hole4.Profile = sketch5
hole4.ThreadType = "None"
hole4.Diameter = 5
hole4.DepthType = "Dimension"
hole4.Depth = 6000
hole4.DrillPoint = "Flat"
hole4.Reversed = True

doc.recompute()
